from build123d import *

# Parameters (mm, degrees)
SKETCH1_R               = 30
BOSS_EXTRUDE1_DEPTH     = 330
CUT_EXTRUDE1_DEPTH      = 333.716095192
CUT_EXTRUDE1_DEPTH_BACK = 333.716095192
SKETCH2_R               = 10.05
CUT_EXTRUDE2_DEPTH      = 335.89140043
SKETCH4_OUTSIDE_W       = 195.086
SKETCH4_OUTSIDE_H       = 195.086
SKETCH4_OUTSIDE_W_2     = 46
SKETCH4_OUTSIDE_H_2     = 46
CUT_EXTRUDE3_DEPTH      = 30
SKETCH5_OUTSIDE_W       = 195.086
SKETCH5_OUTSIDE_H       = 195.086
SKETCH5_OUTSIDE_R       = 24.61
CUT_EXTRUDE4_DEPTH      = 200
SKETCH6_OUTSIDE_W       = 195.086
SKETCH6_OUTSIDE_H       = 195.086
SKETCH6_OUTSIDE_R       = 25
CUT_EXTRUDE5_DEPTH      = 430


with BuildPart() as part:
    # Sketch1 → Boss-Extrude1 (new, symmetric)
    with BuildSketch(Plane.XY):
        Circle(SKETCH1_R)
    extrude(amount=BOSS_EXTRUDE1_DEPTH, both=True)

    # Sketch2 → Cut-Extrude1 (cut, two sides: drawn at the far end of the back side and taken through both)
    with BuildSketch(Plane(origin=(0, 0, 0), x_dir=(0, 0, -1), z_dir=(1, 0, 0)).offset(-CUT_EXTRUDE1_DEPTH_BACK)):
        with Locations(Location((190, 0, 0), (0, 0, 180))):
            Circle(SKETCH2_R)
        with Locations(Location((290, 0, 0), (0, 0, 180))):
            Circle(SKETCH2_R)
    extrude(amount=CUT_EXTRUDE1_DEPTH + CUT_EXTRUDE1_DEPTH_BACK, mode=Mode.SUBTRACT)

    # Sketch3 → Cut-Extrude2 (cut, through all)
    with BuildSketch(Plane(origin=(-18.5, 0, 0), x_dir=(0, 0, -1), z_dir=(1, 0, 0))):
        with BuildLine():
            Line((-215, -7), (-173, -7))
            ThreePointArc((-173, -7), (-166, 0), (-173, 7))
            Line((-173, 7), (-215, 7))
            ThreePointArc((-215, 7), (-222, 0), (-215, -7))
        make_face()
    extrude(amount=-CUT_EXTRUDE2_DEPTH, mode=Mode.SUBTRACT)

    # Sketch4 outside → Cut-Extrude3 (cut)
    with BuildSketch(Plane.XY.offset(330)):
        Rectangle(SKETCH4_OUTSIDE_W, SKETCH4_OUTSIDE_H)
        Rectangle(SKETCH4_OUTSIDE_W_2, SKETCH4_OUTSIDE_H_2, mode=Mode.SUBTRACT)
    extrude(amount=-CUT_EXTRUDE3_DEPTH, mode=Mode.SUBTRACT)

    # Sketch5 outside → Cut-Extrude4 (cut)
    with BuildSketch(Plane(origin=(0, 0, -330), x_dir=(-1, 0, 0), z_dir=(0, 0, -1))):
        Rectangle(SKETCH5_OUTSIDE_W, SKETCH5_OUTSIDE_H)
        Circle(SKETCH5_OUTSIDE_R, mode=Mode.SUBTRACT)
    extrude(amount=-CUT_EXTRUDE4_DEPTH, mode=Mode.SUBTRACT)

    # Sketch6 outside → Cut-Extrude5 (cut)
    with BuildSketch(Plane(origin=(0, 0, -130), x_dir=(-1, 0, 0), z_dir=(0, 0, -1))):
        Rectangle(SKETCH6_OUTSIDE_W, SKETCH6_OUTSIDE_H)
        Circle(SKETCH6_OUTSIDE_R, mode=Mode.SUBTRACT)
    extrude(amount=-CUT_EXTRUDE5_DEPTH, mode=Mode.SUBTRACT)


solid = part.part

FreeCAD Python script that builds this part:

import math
import FreeCAD as App
import Part
import Sketcher
from FreeCAD import Vector

doc = App.newDocument("Part")
body = doc.addObject("PartDesign::Body", "Body")

# Sketch on XY plane
sketch1 = doc.addObject("Sketcher::SketchObject", "Sketch")
body.addObject(sketch1)
sketch1.AttachmentSupport = (doc.XY_Plane, [""])
sketch1.MapMode = "FlatFace"
sketch1.addGeometry(Part.Circle(Vector(0, 0, 0), Vector(0, 0, 1), 30), False)
sketch1.addConstraint(Sketcher.Constraint("Coincident", 0, 3, -1, 1))
sketch1.addConstraint(Sketcher.Constraint("Diameter", 0, 60.0))
pad1 = doc.addObject("PartDesign::Pad", "Pad")
body.addObject(pad1)
pad1.Profile = sketch1
pad1.Length = 660
pad1.Midplane = True

# Sketch on YZ plane
sketch2 = doc.addObject("Sketcher::SketchObject", "Sketch001")
body.addObject(sketch2)
sketch2.AttachmentSupport = (doc.YZ_Plane, [""])
sketch2.MapMode = "FlatFace"
sketch2.addGeometry(Part.Circle(Vector(0, -190, 0), Vector(0, 0, 1), 10), False)
sketch2.addGeometry(Part.Circle(Vector(0, -290, 0), Vector(0, 0, 1), 10), False)
sketch2.addConstraint(Sketcher.Constraint("Equal", 0, 1))
sketch2.addConstraint(Sketcher.Constraint("PointOnObject", 0, 3, -2))
sketch2.addConstraint(Sketcher.Constraint("PointOnObject", 1, 3, -2))
sketch2.addConstraint(Sketcher.Constraint("Diameter", 0, 20.1))
sketch2.addConstraint(Sketcher.Constraint("DistanceY", 0, 3, -1, 1, 190.0))
sketch2.addConstraint(Sketcher.Constraint("DistanceY", 1, 3, -1, 1, 290.0))
pocket1 = doc.addObject("PartDesign::Pocket", "Pocket")
body.addObject(pocket1)
pocket1.Profile = sketch2
pocket1.Type = "ThroughAll"
pocket1.Midplane = True

# Sketch on YZ plane
sketch3 = doc.addObject("Sketcher::SketchObject", "Sketch002")
body.addObject(sketch3)
sketch3.AttachmentSupport = (doc.YZ_Plane, [""])
sketch3.MapMode = "FlatFace"
sketch3.AttachmentOffset = App.Placement(Vector(0, 0, -18.5), App.Rotation())
sketch3.addGeometry(Part.LineSegment(Vector(-7, 215, 0), Vector(-7, 173, 0)), False)
sketch3.addGeometry(Part.ArcOfCircle(Part.Circle(Vector(0, 173, 0), Vector(0, 0, 1), 7), math.radians(180), math.radians(360)), False)
sketch3.addGeometry(Part.LineSegment(Vector(7, 173, 0), Vector(7, 215, 0)), False)
sketch3.addGeometry(Part.ArcOfCircle(Part.Circle(Vector(0, 215, 0), Vector(0, 0, 1), 7), math.radians(0), math.radians(180)), False)
sketch3.addConstraint(Sketcher.Constraint("Tangent", 0, 2, 1, 1))
sketch3.addConstraint(Sketcher.Constraint("Tangent", 1, 2, 2, 1))
sketch3.addConstraint(Sketcher.Constraint("Tangent", 2, 2, 3, 1))
sketch3.addConstraint(Sketcher.Constraint("Tangent", 3, 2, 0, 1))
sketch3.addConstraint(Sketcher.Constraint("Vertical", 0))
sketch3.addConstraint(Sketcher.Constraint("Vertical", 2))
sketch3.addConstraint(Sketcher.Constraint("PointOnObject", 1, 3, -2))
sketch3.addConstraint(Sketcher.Constraint("Radius", 1, 7.0))
sketch3.addConstraint(Sketcher.Constraint("DistanceY", 0, 2, 0, 1, 42.0))
sketch3.addConstraint(Sketcher.Constraint("DistanceY", -1, 1, 1, 3, 173.0))
pocket2 = doc.addObject("PartDesign::Pocket", "Pocket001")
body.addObject(pocket2)
pocket2.Profile = sketch3
pocket2.Type = "ThroughAll"

# Sketch on XY plane
sketch4 = doc.addObject("Sketcher::SketchObject", "Sketch003")
body.addObject(sketch4)
sketch4.AttachmentSupport = (doc.XY_Plane, [""])
sketch4.MapMode = "FlatFace"
sketch4.AttachmentOffset = App.Placement(Vector(0, 0, 330), App.Rotation())
sketch4.addGeometry(Part.LineSegment(Vector(-98, 98, 0), Vector(-98, -98, 0)), False)
sketch4.addGeometry(Part.LineSegment(Vector(-98, -98, 0), Vector(98, -98, 0)), False)
sketch4.addGeometry(Part.LineSegment(Vector(98, -98, 0), Vector(98, 98, 0)), False)
sketch4.addGeometry(Part.LineSegment(Vector(98, 98, 0), Vector(-98, 98, 0)), False)
sketch4.addGeometry(Part.LineSegment(Vector(23, -23, 0), Vector(-23, -23, 0)), False)
sketch4.addGeometry(Part.LineSegment(Vector(-23, -23, 0), Vector(-23, 23, 0)), False)
sketch4.addGeometry(Part.LineSegment(Vector(-23, 23, 0), Vector(23, 23, 0)), False)
sketch4.addGeometry(Part.LineSegment(Vector(23, 23, 0), Vector(23, -23, 0)), False)
sketch4.addConstraint(Sketcher.Constraint("Coincident", 0, 2, 1, 1))
sketch4.addConstraint(Sketcher.Constraint("Coincident", 1, 2, 2, 1))
sketch4.addConstraint(Sketcher.Constraint("Coincident", 2, 2, 3, 1))
sketch4.addConstraint(Sketcher.Constraint("Coincident", 3, 2, 0, 1))
sketch4.addConstraint(Sketcher.Constraint("Coincident", 4, 2, 5, 1))
sketch4.addConstraint(Sketcher.Constraint("Coincident", 5, 2, 6, 1))
sketch4.addConstraint(Sketcher.Constraint("Coincident", 6, 2, 7, 1))
sketch4.addConstraint(Sketcher.Constraint("Coincident", 7, 2, 4, 1))
sketch4.addConstraint(Sketcher.Constraint("Vertical", 0))
sketch4.addConstraint(Sketcher.Constraint("Horizontal", 1))
sketch4.addConstraint(Sketcher.Constraint("Vertical", 2))
sketch4.addConstraint(Sketcher.Constraint("Horizontal", 3))
sketch4.addConstraint(Sketcher.Constraint("Horizontal", 4))
sketch4.addConstraint(Sketcher.Constraint("Vertical", 5))
sketch4.addConstraint(Sketcher.Constraint("Horizontal", 6))
sketch4.addConstraint(Sketcher.Constraint("Vertical", 7))
sketch4.addConstraint(Sketcher.Constraint("Symmetric", 0, 2, 2, 2, -1, 1))
sketch4.addConstraint(Sketcher.Constraint("Symmetric", 4, 2, 6, 2, -1, 1))
sketch4.addConstraint(Sketcher.Constraint("Equal", 3, 0))
sketch4.addConstraint(Sketcher.Constraint("Equal", 6, 5))
sketch4.addConstraint(Sketcher.Constraint("DistanceX", 4, 2, 4, 1, 46.0))
sketch4.addConstraint(Sketcher.Constraint("DistanceX", 1, 1, 1, 2, 195.086))
pocket3 = doc.addObject("PartDesign::Pocket", "Pocket002")
body.addObject(pocket3)
pocket3.Profile = sketch4
pocket3.Length = 30

# Sketch on XY plane
sketch5 = doc.addObject("Sketcher::SketchObject", "Sketch004")
body.addObject(sketch5)
sketch5.AttachmentSupport = (doc.XY_Plane, [""])
sketch5.MapMode = "FlatFace"
sketch5.AttachmentOffset = App.Placement(Vector(0, 0, -330), App.Rotation())
sketch5.addGeometry(Part.LineSegment(Vector(98, 98, 0), Vector(98, -98, 0)), False)
sketch5.addGeometry(Part.LineSegment(Vector(98, -98, 0), Vector(-98, -98, 0)), False)
sketch5.addGeometry(Part.LineSegment(Vector(-98, -98, 0), Vector(-98, 98, 0)), False)
sketch5.addGeometry(Part.LineSegment(Vector(-98, 98, 0), Vector(98, 98, 0)), False)
sketch5.addGeometry(Part.Circle(Vector(0, 0, 0), Vector(0, 0, 1), 25), False)
sketch5.addConstraint(Sketcher.Constraint("Coincident", 0, 2, 1, 1))
sketch5.addConstraint(Sketcher.Constraint("Coincident", 1, 2, 2, 1))
sketch5.addConstraint(Sketcher.Constraint("Coincident", 2, 2, 3, 1))
sketch5.addConstraint(Sketcher.Constraint("Coincident", 3, 2, 0, 1))
sketch5.addConstraint(Sketcher.Constraint("Vertical", 0))
sketch5.addConstraint(Sketcher.Constraint("Horizontal", 1))
sketch5.addConstraint(Sketcher.Constraint("Vertical", 2))
sketch5.addConstraint(Sketcher.Constraint("Horizontal", 3))
sketch5.addConstraint(Sketcher.Constraint("Coincident", 4, 3, -1, 1))
sketch5.addConstraint(Sketcher.Constraint("Symmetric", 0, 2, 2, 2, -1, 1))
sketch5.addConstraint(Sketcher.Constraint("Equal", 3, 0))
sketch5.addConstraint(Sketcher.Constraint("Diameter", 4, 49.22))
sketch5.addConstraint(Sketcher.Constraint("DistanceX", 1, 2, 1, 1, 195.086))
pocket4 = doc.addObject("PartDesign::Pocket", "Pocket003")
body.addObject(pocket4)
pocket4.Profile = sketch5
pocket4.Length = 200
pocket4.Reversed = True

# Sketch on XY plane
sketch6 = doc.addObject("Sketcher::SketchObject", "Sketch005")
body.addObject(sketch6)
sketch6.AttachmentSupport = (doc.XY_Plane, [""])
sketch6.MapMode = "FlatFace"
sketch6.AttachmentOffset = App.Placement(Vector(0, 0, -130), App.Rotation())
sketch6.addGeometry(Part.LineSegment(Vector(98, 98, 0), Vector(98, -98, 0)), False)
sketch6.addGeometry(Part.LineSegment(Vector(98, -98, 0), Vector(-98, -98, 0)), False)
sketch6.addGeometry(Part.LineSegment(Vector(-98, -98, 0), Vector(-98, 98, 0)), False)
sketch6.addGeometry(Part.LineSegment(Vector(-98, 98, 0), Vector(98, 98, 0)), False)
sketch6.addGeometry(Part.Circle(Vector(0, 0, 0), Vector(0, 0, 1), 25), False)
sketch6.addConstraint(Sketcher.Constraint("Coincident", 0, 2, 1, 1))
sketch6.addConstraint(Sketcher.Constraint("Coincident", 1, 2, 2, 1))
sketch6.addConstraint(Sketcher.Constraint("Coincident", 2, 2, 3, 1))
sketch6.addConstraint(Sketcher.Constraint("Coincident", 3, 2, 0, 1))
sketch6.addConstraint(Sketcher.Constraint("Vertical", 0))
sketch6.addConstraint(Sketcher.Constraint("Horizontal", 1))
sketch6.addConstraint(Sketcher.Constraint("Vertical", 2))
sketch6.addConstraint(Sketcher.Constraint("Horizontal", 3))
sketch6.addConstraint(Sketcher.Constraint("Coincident", 4, 3, -1, 1))
sketch6.addConstraint(Sketcher.Constraint("Symmetric", 0, 2, 2, 2, -1, 1))
sketch6.addConstraint(Sketcher.Constraint("Equal", 3, 0))
sketch6.addConstraint(Sketcher.Constraint("Diameter", 4, 50.0))
sketch6.addConstraint(Sketcher.Constraint("DistanceX", 1, 2, 1, 1, 195.086))
pocket5 = doc.addObject("PartDesign::Pocket", "Pocket004")
body.addObject(pocket5)
pocket5.Profile = sketch6
pocket5.Length = 430
pocket5.Reversed = True

doc.recompute()
